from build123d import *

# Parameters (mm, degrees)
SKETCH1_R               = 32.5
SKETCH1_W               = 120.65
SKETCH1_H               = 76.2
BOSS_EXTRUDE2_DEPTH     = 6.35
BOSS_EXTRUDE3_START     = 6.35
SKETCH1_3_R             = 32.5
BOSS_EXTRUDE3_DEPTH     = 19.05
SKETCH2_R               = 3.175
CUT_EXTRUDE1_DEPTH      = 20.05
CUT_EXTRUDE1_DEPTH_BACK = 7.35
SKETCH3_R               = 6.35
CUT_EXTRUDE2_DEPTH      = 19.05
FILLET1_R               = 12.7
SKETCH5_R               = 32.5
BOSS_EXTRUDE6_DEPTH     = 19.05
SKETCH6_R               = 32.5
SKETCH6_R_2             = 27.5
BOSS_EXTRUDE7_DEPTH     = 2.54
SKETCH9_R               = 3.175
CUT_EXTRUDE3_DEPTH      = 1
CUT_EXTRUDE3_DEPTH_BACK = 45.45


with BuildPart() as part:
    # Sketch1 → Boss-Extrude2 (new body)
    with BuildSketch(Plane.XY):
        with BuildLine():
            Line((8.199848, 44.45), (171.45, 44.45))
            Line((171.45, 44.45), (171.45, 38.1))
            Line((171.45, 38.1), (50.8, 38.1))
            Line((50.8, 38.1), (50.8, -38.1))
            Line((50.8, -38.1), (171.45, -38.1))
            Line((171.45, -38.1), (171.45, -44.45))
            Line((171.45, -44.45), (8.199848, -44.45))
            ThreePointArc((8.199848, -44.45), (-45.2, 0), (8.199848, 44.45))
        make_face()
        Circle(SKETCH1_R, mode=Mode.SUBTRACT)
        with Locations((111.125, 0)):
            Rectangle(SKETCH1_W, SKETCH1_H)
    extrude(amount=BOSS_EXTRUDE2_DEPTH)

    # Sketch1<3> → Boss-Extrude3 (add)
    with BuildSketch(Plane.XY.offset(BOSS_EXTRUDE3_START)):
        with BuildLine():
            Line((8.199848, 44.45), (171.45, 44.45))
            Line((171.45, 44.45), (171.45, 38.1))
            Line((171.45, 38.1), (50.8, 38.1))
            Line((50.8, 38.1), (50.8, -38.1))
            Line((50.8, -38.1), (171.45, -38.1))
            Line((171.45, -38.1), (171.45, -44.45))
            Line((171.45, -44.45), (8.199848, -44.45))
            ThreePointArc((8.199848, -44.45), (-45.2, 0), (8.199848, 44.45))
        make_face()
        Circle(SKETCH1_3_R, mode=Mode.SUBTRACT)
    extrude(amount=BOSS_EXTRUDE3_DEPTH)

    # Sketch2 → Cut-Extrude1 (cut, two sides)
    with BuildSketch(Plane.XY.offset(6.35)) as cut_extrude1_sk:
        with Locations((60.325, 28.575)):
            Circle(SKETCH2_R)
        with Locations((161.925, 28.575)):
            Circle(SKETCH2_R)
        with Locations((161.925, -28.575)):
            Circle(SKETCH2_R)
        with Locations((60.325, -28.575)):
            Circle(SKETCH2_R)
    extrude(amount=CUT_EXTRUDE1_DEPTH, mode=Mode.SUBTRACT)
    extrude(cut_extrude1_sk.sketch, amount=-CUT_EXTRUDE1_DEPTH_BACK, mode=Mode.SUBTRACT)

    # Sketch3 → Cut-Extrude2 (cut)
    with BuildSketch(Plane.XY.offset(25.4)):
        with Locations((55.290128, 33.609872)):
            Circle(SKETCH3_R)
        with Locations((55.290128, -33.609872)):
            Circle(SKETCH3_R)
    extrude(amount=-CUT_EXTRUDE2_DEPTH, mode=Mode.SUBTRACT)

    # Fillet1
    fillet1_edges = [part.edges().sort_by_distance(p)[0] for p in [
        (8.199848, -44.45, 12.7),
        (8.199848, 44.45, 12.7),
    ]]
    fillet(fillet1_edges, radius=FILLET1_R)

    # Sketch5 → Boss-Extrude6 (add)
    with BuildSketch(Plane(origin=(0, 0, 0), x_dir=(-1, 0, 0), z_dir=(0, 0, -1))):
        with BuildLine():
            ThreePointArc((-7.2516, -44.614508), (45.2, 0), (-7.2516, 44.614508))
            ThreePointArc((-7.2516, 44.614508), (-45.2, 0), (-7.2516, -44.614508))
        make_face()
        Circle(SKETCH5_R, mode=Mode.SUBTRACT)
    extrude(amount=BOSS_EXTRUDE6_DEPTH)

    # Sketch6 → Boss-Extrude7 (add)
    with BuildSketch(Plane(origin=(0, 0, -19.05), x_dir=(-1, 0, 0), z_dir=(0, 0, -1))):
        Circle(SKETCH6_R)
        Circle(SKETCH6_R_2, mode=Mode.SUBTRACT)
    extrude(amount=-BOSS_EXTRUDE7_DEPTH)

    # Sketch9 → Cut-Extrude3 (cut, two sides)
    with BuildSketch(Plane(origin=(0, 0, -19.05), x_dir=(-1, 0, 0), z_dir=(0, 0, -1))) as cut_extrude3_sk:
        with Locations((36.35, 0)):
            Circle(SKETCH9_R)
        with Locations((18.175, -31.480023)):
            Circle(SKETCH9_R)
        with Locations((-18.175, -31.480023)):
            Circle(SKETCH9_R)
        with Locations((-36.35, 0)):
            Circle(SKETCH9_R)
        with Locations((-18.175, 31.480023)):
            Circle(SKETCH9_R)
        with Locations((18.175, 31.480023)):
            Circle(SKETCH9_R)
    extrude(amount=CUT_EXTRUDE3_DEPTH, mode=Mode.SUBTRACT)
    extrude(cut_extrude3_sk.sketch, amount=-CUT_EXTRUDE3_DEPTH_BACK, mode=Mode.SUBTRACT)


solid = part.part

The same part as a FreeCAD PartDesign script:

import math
import FreeCAD as App
import Part
import Sketcher

V = App.Vector
Q = App.Units.Quantity


def edges_at(feature, points):
    """Names of the edges that pass closest to the given points."""
    edges = feature.Shape.Edges
    near = lambda p: min(range(len(edges)), key=lambda i: edges[i].distToShape(Part.Vertex(*p))[0])
    return sorted({f"Edge{near(p) + 1}" for p in points})

doc = App.newDocument("Part")
body = doc.addObject("PartDesign::Body", "Body")

# Sketch on XY plane
sketch1 = body.newObject("Sketcher::SketchObject", "Sketch")
sketch1.AttachmentSupport = (doc.getObject("XY_Plane"), [""])
sketch1.MapMode = "FlatFace"
sketch1.addGeometry([
    Part.LineSegment(V(171, 44, 0), V(8, 44, 0)),  # 0
    Part.ArcOfCircle(Part.Circle(V(0, 0, 0), V(0, 0, 1), 45), math.radians(80), math.radians(280)),  # 1
    Part.LineSegment(V(8, -44, 0), V(171, -44, 0)),  # 2
    Part.LineSegment(V(171, -44, 0), V(171, 44, 0)),  # 3
    Part.Circle(V(0, 0, 0), V(0, 0, 1), 32),  # 4
], False)
sketch1.addConstraint([
    Sketcher.Constraint("Coincident", 0, 2, 1, 1),
    Sketcher.Constraint("Coincident", 1, 2, 2, 1),
    Sketcher.Constraint("Coincident", 2, 2, 3, 1),
    Sketcher.Constraint("Coincident", 3, 2, 0, 1),
    Sketcher.Constraint("Horizontal", 0),
    Sketcher.Constraint("Horizontal", 2),
    Sketcher.Constraint("Vertical", 3),
    Sketcher.Constraint("Coincident", 1, 3, -1, 1),
    Sketcher.Constraint("Coincident", 4, 3, -1, 1),
    Sketcher.Constraint("Vertical", 0, 2, 1, 2),
    Sketcher.Constraint("DistanceY", 3, 1, 3, 2, Q("3.5 in")),
    Sketcher.Constraint("Diameter", 4, 65.0),
    Sketcher.Constraint("DistanceX", -1, 1, 2, 2, Q("6.75 in")),
    Sketcher.Constraint("Radius", 1, 45.2),
])
pad1 = body.newObject("PartDesign::Pad", "Pad")
pad1.Profile = sketch1
pad1.Length = Q("0.25 in")

# Sketch on XY plane
sketch2 = body.newObject("Sketcher::SketchObject", "Sketch001")
sketch2.AttachmentSupport = (doc.getObject("XY_Plane"), [""])
sketch2.MapMode = "FlatFace"
sketch2.AttachmentOffset = App.Placement(V(0, 0, 0.25 * 25.4), App.Rotation())
sketch2.addGeometry([
    Part.LineSegment(V(171, 44, 0), V(8, 44, 0)),  # 0
    Part.ArcOfCircle(Part.Circle(V(0, 0, 0), V(0, 0, 1), 45), math.radians(80), math.radians(280)),  # 1
    Part.LineSegment(V(8, -44, 0), V(171, -44, 0)),  # 2
    Part.LineSegment(V(171, -44, 0), V(171, -38, 0)),  # 3
    Part.LineSegment(V(171, -38, 0), V(51, -38, 0)),  # 4
    Part.LineSegment(V(51, -38, 0), V(51, 38, 0)),  # 5
    Part.LineSegment(V(51, 38, 0), V(171, 38, 0)),  # 6
    Part.LineSegment(V(171, 38, 0), V(171, 44, 0)),  # 7
    Part.Circle(V(0, 0, 0), V(0, 0, 1), 32),  # 8
], False)
sketch2.addConstraint([
    Sketcher.Constraint("Coincident", 0, 2, 1, 1),
    Sketcher.Constraint("Coincident", 1, 2, 2, 1),
    Sketcher.Constraint("Coincident", 2, 2, 3, 1),
    Sketcher.Constraint("Coincident", 3, 2, 4, 1),
    Sketcher.Constraint("Coincident", 4, 2, 5, 1),
    Sketcher.Constraint("Coincident", 5, 2, 6, 1),
    Sketcher.Constraint("Coincident", 6, 2, 7, 1),
    Sketcher.Constraint("Coincident", 7, 2, 0, 1),
    Sketcher.Constraint("Horizontal", 0),
    Sketcher.Constraint("Horizontal", 2),
    Sketcher.Constraint("Vertical", 3),
    Sketcher.Constraint("Horizontal", 4),
    Sketcher.Constraint("Vertical", 5),
    Sketcher.Constraint("Horizontal", 6),
    Sketcher.Constraint("Vertical", 7),
    Sketcher.Constraint("Coincident", 1, 3, -1, 1),
    Sketcher.Constraint("Coincident", 8, 3, -1, 1),
    Sketcher.Constraint("Symmetric", 3, 2, 6, 2, -1),
    Sketcher.Constraint("Vertical", 0, 2, 1, 2),
    Sketcher.Constraint("DistanceY", 5, 1, 5, 2, Q("3 in")),
    Sketcher.Constraint("DistanceX", -1, 1, 4, 2, Q("2 in")),
    Sketcher.Constraint("DistanceX", 4, 2, 4, 1, Q("4.75 in")),
    Sketcher.Constraint("DistanceY", 3, 1, 3, 2, Q("0.25 in")),
    Sketcher.Constraint("Diameter", 8, 65.0),
    Sketcher.Constraint("Radius", 1, 45.2),
])
pad2 = body.newObject("PartDesign::Pad", "Pad001")
pad2.Profile = sketch2
pad2.Length = Q("0.75 in")

# Sketch on XY plane
sketch3 = body.newObject("Sketcher::SketchObject", "Sketch002")
sketch3.AttachmentSupport = (doc.getObject("XY_Plane"), [""])
sketch3.MapMode = "FlatFace"
sketch3.AttachmentOffset = App.Placement(V(0, 0, 0.25 * 25.4), App.Rotation())
sketch3.addGeometry([
    Part.Circle(V(60.3, 28.6, 0), V(0, 0, 1), 3.2),
    Part.Circle(V(161.9, 28.6, 0), V(0, 0, 1), 3.2),
    Part.Circle(V(161.9, -28.6, 0), V(0, 0, 1), 3.2),
    Part.Circle(V(60.3, -28.6, 0), V(0, 0, 1), 3.2),
], False)
sketch3.addConstraint([
    Sketcher.Constraint("Equal", 0, 1),
    Sketcher.Constraint("Equal", 1, 2),
    Sketcher.Constraint("Equal", 2, 3),
    Sketcher.Constraint("Symmetric", 1, 3, 2, 3, -1),
    Sketcher.Constraint("Symmetric", 0, 3, 3, 3, -1),
    Sketcher.Constraint("Horizontal", 0, 3, 1, 3),
    Sketcher.Constraint("Diameter", 0, Q("0.25 in")),
    Sketcher.Constraint("DistanceX", 0, 3, 1, 3, Q("4 in")),
    Sketcher.Constraint("DistanceY", 2, 3, 1, 3, Q("2.25 in")),
    Sketcher.Constraint("DistanceX", -1, 1, 0, 3, Q("2.375 in")),
])
pocket1 = body.newObject("PartDesign::Pocket", "Pocket")
pocket1.Profile = sketch3
pocket1.Type = "ThroughAll"
pocket1.Midplane = True

# Sketch on XY plane
sketch4 = body.newObject("Sketcher::SketchObject", "Sketch003")
sketch4.AttachmentSupport = (doc.getObject("XY_Plane"), [""])
sketch4.MapMode = "FlatFace"
sketch4.AttachmentOffset = App.Placement(V(0, 0, 1 * 25.4), App.Rotation())
sketch4.addGeometry([
    Part.Circle(V(55, 34, 0), V(0, 0, 1), 6),
    Part.Circle(V(55, -34, 0), V(0, 0, 1), 6),
], False)
sketch4.addConstraint([
    Sketcher.Constraint("Equal", 0, 1),
    Sketcher.Constraint("Symmetric", 0, 3, 1, 3, -1),
    Sketcher.Constraint("Diameter", 0, Q("0.5 in")),
    Sketcher.Constraint("DistanceX", -1, 1, 0, 3, 55.290128),
    Sketcher.Constraint("DistanceY", -1, 1, 0, 3, 33.609872),
])
pocket2 = body.newObject("PartDesign::Pocket", "Pocket001")
pocket2.Profile = sketch4
pocket2.Length = Q("0.75 in")
doc.recompute()

fillet = body.newObject("PartDesign::Fillet", "Fillet")
fillet.Base = (pocket2, edges_at(pocket2, [(8.2, -44.45, 12.7), (8.2, 44.45, 12.7)]))
fillet.Radius = Q("0.5 in")

# Sketch on XY plane
sketch5 = body.newObject("Sketcher::SketchObject", "Sketch004")
sketch5.AttachmentSupport = (doc.getObject("XY_Plane"), [""])
sketch5.MapMode = "FlatFace"
sketch5.addGeometry([
    Part.ArcOfCircle(Part.Circle(V(0, 0, 0), V(0, 0, 1), 45), math.radians(81), math.radians(279)),
    Part.ArcOfCircle(Part.Circle(V(0, 0, 0), V(0, 0, 1), 45), math.radians(-81), math.radians(81)),
    Part.Circle(V(0, 0, 0), V(0, 0, 1), 32),
], False)
sketch5.addConstraint([
    Sketcher.Constraint("Tangent", 0, 1, 1, 2),
    Sketcher.Constraint("Coincident", 1, 1, 0, 2),
    Sketcher.Constraint("Coincident", 0, 3, -1, 1),
    Sketcher.Constraint("Coincident", 2, 3, -1, 1),
    Sketcher.Constraint("Vertical", 0, 1, 1, 1),
    Sketcher.Constraint("Diameter", 2, 65.0),
    Sketcher.Constraint("Radius", 0, 45.2),
    Sketcher.Constraint("DistanceX", -1, 1, 0, 1, 7.2516),
])
pad3 = body.newObject("PartDesign::Pad", "Pad002")
pad3.Profile = sketch5
pad3.Length = Q("0.75 in")
pad3.Reversed = True

# Sketch on XY plane
sketch6 = body.newObject("Sketcher::SketchObject", "Sketch005")
sketch6.AttachmentSupport = (doc.getObject("XY_Plane"), [""])
sketch6.MapMode = "FlatFace"
sketch6.AttachmentOffset = App.Placement(V(0, 0, -0.75 * 25.4), App.Rotation())
sketch6.addGeometry([
    Part.Circle(V(0, 0, 0), V(0, 0, 1), 32),
    Part.Circle(V(0, 0, 0), V(0, 0, 1), 28),
], False)
sketch6.addConstraint([
    Sketcher.Constraint("Coincident", 0, 3, -1, 1),
    Sketcher.Constraint("Coincident", 1, 3, -1, 1),
    Sketcher.Constraint("Diameter", 0, 65.0),
    Sketcher.Constraint("Diameter", 1, 55.0),
])
pad4 = body.newObject("PartDesign::Pad", "Pad003")
pad4.Profile = sketch6
pad4.Length = Q("0.1 in")

# Sketch on XY plane
sketch7 = body.newObject("Sketcher::SketchObject", "Sketch006")
sketch7.AttachmentSupport = (doc.getObject("XY_Plane"), [""])
sketch7.MapMode = "FlatFace"
sketch7.AttachmentOffset = App.Placement(V(0, 0, -0.75 * 25.4), App.Rotation())
sketch7.addGeometry([
    Part.Circle(V(-36.4, 0, 0), V(0, 0, 1), 3.2),  # 0
    Part.Circle(V(-18.2, -31.5, 0), V(0, 0, 1), 3.2),  # 1
    Part.Circle(V(18.2, -31.5, 0), V(0, 0, 1), 3.2),  # 2
    Part.Circle(V(36.4, 0, 0), V(0, 0, 1), 3.2),  # 3
    Part.Circle(V(18.2, 31.5, 0), V(0, 0, 1), 3.2),  # 4
    Part.Circle(V(-18.2, 31.5, 0), V(0, 0, 1), 3.2),  # 5
], False)
sketch7.addConstraint([
    Sketcher.Constraint("Equal", 0, 1),
    Sketcher.Constraint("Equal", 1, 2),
    Sketcher.Constraint("Equal", 2, 3),
    Sketcher.Constraint("Equal", 3, 4),
    Sketcher.Constraint("Equal", 4, 5),
    Sketcher.Constraint("Symmetric", 0, 3, 3, 3, -1, 1),
    Sketcher.Constraint("Symmetric", 1, 3, 4, 3, -1, 1),
    Sketcher.Constraint("Symmetric", 2, 3, 5, 3, -1, 1),
    Sketcher.Constraint("Symmetric", 1, 3, 2, 3, -2),
    Sketcher.Constraint("PointOnObject", 0, 3, -1),
    Sketcher.Constraint("Diameter", 0, Q("0.25 in")),
    Sketcher.Constraint("DistanceX", 0, 3, -1, 1, 36.35),
    Sketcher.Constraint("DistanceX", 1, 3, -1, 1, 18.175),
    Sketcher.Constraint("DistanceY", 1, 3, -1, 1, 31.480023),
])
pocket3 = body.newObject("PartDesign::Pocket", "Pocket002")
pocket3.Profile = sketch7
pocket3.Type = "ThroughAll"
pocket3.Midplane = True

doc.recompute()
